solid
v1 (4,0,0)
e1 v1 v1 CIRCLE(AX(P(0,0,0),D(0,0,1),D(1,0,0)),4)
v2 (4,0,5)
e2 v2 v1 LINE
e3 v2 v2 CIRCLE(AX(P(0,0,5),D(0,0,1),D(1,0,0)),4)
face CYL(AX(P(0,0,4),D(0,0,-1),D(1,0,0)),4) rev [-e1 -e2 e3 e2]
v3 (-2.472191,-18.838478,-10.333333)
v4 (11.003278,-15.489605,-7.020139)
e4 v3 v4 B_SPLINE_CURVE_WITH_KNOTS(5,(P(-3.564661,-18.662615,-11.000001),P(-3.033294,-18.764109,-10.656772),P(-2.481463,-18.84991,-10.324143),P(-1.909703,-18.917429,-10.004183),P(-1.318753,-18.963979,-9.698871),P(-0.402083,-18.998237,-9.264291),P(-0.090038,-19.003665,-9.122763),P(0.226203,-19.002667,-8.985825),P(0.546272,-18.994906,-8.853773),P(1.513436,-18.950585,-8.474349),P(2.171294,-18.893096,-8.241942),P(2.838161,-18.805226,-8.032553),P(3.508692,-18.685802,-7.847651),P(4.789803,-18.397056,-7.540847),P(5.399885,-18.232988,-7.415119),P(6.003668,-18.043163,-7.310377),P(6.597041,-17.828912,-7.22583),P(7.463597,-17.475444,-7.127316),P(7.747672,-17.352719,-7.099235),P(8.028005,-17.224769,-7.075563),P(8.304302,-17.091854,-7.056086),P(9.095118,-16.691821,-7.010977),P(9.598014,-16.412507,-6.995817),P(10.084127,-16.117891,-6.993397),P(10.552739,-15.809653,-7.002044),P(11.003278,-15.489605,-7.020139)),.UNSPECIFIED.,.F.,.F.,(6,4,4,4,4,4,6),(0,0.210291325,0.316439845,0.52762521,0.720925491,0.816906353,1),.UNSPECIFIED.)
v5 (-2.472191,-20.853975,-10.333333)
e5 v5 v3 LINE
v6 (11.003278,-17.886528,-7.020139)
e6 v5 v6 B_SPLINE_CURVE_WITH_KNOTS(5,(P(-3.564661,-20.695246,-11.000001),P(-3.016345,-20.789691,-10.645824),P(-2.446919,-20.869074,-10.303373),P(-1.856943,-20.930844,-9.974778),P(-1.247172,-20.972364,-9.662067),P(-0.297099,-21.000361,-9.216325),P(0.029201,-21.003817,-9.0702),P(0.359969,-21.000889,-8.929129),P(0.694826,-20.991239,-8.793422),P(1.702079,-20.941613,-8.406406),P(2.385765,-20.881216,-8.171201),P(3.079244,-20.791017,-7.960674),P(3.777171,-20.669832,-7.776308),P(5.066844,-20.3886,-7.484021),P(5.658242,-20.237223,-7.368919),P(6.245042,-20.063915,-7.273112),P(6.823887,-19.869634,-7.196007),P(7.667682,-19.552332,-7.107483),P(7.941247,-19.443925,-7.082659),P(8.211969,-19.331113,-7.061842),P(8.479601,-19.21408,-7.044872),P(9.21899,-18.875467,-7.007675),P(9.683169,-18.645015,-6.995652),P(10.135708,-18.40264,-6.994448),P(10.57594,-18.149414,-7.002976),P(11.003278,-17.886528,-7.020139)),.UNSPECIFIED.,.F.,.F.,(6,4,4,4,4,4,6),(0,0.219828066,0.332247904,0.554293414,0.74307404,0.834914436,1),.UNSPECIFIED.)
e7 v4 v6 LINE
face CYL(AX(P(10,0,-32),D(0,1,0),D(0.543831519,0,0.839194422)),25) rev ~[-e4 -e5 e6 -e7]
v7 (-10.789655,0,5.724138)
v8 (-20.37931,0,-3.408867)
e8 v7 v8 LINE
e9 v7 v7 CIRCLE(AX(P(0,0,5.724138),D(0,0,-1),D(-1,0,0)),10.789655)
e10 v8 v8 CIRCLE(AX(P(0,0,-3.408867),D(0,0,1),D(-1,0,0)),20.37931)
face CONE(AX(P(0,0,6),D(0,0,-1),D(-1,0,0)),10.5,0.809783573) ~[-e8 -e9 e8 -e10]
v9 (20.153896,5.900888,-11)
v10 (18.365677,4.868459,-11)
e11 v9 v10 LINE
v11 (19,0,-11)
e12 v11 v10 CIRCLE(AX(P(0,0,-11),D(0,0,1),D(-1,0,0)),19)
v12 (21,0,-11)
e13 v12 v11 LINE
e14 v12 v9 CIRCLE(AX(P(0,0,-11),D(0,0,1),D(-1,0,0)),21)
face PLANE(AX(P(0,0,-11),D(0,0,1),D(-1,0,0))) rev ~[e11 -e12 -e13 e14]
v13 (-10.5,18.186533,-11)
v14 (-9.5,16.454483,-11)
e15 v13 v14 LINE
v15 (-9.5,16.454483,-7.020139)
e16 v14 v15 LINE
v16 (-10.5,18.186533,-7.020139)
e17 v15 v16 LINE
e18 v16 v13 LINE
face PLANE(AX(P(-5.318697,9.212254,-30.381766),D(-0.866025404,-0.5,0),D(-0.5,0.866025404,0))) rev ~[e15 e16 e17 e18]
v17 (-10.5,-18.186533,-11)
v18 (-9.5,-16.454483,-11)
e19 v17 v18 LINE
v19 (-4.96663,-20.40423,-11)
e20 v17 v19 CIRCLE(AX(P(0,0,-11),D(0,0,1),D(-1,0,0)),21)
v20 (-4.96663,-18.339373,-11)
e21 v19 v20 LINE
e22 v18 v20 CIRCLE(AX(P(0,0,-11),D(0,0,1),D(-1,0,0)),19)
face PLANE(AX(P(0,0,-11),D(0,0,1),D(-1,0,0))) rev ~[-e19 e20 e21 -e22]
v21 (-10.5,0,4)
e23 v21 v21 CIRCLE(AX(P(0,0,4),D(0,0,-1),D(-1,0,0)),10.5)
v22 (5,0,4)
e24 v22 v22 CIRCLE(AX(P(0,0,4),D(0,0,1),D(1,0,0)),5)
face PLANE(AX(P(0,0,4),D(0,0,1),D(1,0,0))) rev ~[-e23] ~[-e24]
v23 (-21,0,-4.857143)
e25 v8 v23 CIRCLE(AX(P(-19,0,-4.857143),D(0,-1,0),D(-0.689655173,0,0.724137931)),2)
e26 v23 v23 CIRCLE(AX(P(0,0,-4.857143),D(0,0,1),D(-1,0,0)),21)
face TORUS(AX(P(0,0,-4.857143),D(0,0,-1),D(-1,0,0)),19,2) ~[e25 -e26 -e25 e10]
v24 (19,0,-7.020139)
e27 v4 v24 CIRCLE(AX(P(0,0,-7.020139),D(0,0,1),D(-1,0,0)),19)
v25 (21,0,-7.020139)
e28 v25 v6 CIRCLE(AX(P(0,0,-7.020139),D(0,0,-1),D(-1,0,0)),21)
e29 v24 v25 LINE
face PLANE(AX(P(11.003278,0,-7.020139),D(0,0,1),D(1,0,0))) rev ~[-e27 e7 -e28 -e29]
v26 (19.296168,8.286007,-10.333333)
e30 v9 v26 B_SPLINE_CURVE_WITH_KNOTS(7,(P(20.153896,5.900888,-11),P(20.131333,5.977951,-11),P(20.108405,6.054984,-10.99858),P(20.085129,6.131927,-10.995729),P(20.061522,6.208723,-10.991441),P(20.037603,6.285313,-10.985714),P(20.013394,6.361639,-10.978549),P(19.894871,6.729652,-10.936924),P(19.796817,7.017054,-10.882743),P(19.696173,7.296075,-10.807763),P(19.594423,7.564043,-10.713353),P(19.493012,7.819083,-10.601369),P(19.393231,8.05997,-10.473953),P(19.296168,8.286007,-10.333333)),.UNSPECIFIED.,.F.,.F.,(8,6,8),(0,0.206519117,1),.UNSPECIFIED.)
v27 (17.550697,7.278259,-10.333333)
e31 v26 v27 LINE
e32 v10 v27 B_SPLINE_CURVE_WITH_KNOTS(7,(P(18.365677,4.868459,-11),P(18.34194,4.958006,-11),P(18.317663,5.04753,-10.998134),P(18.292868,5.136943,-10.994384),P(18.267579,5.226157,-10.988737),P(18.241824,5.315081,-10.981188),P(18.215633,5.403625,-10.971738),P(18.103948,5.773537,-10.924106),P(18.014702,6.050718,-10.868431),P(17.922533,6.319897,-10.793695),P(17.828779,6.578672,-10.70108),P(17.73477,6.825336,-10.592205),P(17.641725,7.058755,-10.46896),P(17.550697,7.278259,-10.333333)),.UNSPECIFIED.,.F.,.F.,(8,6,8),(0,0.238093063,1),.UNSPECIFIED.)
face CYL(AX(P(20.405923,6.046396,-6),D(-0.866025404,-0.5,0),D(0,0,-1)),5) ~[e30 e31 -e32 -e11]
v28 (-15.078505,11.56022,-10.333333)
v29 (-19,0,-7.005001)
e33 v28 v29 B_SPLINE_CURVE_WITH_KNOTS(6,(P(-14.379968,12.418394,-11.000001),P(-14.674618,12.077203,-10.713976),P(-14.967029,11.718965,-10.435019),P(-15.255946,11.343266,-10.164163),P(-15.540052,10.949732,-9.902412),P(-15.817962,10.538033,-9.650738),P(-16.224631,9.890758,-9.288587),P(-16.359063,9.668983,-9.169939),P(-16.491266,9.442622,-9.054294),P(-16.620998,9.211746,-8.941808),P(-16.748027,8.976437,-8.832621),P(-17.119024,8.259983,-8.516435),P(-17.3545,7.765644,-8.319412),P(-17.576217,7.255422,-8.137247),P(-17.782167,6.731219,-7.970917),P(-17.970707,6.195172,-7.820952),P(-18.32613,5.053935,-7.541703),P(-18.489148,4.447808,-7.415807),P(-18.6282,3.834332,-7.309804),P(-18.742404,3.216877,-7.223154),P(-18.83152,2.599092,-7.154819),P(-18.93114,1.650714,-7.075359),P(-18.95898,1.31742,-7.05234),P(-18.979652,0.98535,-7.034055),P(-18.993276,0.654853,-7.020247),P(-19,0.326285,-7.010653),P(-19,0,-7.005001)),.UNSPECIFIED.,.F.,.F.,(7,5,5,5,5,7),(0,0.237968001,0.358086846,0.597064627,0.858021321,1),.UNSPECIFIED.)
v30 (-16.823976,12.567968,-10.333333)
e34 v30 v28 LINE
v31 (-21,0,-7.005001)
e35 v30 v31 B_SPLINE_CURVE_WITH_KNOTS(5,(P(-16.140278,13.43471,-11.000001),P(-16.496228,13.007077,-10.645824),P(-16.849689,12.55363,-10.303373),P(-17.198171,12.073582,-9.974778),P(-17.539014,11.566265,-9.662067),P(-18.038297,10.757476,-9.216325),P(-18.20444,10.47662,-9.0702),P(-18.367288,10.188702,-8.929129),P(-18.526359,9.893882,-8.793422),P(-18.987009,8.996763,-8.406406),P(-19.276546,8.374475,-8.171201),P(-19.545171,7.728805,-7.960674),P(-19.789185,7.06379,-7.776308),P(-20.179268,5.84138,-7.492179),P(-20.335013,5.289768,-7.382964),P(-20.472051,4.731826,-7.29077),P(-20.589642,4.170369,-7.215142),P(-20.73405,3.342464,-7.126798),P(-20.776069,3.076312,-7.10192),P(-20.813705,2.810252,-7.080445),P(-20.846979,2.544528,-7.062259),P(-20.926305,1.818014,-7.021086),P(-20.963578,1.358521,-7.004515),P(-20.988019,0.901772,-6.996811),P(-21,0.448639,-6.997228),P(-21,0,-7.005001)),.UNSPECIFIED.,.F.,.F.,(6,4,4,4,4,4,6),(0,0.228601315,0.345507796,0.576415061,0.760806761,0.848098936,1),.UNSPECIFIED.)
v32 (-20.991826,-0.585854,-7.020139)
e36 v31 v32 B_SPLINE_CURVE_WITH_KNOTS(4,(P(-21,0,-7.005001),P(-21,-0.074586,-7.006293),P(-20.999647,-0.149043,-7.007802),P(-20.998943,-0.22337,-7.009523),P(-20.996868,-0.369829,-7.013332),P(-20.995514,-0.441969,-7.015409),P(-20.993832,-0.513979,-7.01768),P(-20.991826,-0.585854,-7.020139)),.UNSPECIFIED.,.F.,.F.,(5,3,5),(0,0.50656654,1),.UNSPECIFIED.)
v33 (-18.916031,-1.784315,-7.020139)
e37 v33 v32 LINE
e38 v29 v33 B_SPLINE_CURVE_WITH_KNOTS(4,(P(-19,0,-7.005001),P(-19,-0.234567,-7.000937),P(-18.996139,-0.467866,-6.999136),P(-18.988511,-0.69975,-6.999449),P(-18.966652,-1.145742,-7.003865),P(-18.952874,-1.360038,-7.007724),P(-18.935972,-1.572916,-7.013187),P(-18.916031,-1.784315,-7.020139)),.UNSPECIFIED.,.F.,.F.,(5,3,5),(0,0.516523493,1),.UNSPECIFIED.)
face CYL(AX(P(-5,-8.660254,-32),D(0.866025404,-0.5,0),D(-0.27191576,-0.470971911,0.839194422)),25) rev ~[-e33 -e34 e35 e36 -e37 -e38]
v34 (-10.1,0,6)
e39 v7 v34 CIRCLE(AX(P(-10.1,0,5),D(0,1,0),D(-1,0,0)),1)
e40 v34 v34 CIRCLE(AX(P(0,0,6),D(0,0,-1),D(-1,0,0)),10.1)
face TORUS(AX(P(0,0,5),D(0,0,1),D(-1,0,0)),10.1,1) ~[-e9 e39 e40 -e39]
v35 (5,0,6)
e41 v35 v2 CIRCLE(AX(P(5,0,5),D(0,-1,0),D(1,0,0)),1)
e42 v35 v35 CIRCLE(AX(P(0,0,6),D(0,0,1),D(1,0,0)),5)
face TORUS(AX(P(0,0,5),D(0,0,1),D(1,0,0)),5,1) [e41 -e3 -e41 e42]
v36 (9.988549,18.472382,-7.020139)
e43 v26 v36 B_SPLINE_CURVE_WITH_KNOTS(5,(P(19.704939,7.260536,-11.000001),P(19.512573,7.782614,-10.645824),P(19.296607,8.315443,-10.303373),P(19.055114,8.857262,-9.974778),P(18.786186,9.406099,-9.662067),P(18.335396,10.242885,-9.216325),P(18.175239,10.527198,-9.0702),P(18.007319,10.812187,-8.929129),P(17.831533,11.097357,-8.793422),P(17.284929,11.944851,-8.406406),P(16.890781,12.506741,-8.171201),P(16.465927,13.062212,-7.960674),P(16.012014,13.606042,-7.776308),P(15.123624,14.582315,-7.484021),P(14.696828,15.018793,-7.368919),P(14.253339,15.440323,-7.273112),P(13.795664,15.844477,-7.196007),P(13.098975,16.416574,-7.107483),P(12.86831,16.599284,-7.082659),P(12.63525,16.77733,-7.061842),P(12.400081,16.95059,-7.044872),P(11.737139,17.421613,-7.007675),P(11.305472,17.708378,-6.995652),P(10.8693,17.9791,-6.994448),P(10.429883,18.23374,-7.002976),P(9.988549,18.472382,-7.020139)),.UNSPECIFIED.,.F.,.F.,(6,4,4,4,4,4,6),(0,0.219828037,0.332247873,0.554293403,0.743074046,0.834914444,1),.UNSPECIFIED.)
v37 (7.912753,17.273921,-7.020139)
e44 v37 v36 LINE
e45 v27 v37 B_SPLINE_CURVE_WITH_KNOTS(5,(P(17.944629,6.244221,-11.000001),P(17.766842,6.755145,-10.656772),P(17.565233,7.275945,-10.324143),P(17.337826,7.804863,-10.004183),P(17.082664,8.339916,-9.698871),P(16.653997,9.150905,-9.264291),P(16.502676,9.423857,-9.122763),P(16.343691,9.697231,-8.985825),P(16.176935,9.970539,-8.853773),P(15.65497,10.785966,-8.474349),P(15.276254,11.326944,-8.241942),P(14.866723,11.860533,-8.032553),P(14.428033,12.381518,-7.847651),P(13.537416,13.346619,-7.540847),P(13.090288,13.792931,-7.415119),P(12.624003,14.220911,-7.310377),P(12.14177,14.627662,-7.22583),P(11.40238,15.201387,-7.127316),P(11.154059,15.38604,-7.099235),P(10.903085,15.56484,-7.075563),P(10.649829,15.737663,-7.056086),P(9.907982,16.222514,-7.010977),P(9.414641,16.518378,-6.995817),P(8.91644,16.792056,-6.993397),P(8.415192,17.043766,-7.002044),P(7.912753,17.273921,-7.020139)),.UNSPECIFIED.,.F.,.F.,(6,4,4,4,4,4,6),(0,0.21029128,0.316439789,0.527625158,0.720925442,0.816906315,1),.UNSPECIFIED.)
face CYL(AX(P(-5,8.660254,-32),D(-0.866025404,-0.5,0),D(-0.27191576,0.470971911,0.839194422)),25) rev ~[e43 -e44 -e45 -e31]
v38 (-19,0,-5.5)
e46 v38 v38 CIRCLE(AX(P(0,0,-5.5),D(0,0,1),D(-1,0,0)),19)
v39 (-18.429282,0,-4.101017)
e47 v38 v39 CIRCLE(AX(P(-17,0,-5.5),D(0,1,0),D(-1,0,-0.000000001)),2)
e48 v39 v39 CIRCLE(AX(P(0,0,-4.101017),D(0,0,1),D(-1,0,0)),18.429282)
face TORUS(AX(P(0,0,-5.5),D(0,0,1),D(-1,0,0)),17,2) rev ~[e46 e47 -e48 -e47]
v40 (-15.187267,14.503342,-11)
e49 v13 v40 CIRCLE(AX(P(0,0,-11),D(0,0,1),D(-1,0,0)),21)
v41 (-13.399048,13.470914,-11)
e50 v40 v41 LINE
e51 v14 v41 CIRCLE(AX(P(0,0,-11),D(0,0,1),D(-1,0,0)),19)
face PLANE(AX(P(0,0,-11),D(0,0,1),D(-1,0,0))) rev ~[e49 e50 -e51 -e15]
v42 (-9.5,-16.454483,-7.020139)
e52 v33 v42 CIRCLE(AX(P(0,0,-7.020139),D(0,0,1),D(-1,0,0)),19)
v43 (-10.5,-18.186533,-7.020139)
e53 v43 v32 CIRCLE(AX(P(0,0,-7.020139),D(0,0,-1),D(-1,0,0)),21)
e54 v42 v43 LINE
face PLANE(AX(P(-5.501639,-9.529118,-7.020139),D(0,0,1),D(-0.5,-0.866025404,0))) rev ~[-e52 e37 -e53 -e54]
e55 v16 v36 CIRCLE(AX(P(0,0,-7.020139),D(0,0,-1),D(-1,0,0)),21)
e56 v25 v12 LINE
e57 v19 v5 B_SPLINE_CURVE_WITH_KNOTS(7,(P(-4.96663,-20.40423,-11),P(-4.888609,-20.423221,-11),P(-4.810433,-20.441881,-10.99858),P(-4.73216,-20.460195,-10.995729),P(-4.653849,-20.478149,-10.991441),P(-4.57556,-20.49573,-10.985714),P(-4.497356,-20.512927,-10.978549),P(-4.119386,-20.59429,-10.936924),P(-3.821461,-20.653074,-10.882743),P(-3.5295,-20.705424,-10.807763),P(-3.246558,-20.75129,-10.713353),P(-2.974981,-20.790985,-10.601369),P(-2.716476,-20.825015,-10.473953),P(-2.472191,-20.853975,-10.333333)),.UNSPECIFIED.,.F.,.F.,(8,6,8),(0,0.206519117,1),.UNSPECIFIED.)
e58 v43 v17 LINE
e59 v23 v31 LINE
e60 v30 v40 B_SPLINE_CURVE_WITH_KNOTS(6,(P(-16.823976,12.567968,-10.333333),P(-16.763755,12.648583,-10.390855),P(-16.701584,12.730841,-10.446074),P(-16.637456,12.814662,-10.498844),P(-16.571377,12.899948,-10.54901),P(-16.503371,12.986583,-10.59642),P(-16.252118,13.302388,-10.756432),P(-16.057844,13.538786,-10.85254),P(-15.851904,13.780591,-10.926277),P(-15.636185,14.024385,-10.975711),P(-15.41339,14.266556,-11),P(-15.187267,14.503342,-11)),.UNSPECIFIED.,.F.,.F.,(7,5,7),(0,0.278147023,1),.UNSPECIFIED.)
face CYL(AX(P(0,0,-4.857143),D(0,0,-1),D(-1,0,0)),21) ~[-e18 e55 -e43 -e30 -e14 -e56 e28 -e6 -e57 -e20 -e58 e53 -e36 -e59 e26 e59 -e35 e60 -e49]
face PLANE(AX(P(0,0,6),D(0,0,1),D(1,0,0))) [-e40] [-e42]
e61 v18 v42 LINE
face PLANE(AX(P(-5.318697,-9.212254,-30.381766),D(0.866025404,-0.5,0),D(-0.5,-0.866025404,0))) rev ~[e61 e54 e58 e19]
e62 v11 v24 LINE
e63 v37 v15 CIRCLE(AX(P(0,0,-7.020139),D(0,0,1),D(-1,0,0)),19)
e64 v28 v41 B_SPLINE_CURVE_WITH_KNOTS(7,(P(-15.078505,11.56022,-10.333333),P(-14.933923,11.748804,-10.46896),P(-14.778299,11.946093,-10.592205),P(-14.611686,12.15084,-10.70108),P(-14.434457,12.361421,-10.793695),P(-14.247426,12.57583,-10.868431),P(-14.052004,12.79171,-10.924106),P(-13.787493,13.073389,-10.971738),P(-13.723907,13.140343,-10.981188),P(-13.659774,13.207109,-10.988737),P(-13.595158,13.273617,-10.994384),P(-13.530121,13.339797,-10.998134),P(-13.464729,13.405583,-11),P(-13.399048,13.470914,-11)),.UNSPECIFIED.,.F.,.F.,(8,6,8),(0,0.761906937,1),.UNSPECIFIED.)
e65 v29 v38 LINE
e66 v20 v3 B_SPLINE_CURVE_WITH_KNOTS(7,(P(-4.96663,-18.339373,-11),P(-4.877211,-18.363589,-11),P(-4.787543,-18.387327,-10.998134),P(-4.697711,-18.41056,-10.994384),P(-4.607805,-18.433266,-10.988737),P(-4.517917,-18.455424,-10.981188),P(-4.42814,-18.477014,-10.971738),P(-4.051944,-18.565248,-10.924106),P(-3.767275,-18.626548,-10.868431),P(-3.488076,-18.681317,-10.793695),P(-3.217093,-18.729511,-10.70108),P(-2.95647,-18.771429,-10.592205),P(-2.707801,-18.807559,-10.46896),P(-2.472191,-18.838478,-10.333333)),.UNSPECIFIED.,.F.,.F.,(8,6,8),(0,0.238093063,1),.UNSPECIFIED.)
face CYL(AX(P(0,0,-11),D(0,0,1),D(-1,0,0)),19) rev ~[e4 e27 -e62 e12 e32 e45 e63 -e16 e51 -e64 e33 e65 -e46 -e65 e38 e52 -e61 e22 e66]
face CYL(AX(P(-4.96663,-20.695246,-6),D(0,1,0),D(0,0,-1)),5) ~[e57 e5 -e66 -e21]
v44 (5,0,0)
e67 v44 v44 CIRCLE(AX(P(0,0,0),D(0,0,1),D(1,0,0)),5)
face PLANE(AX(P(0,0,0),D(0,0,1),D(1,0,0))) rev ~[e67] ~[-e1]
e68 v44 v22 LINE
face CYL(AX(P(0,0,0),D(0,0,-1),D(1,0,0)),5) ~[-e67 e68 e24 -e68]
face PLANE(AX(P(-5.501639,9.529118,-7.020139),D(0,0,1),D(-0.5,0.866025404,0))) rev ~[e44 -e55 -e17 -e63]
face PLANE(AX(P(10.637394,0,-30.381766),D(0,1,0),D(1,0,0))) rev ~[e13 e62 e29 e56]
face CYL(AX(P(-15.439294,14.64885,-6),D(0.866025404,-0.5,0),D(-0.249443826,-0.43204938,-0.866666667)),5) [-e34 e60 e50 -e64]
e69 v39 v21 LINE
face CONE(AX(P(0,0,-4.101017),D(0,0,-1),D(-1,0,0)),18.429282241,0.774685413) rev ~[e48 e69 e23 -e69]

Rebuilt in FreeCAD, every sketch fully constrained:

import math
import FreeCAD as App
import Part
import Sketcher

V = App.Vector


def edges_at(feature, points):
    """Names of the edges that pass closest to the given points."""
    edges = feature.Shape.Edges
    near = lambda p: min(range(len(edges)), key=lambda i: edges[i].distToShape(Part.Vertex(*p))[0])
    return sorted({f"Edge{near(p) + 1}" for p in points})

doc = App.newDocument("Part")
params = doc.addObject("Spreadsheet::Sheet", "Params")
for row, (alias, value) in enumerate([
    ("sketch1_diameter", "10 mm"),
    ("sketch1_diameter2", "8 mm"),
    ("pad1_length", "4 mm"),
    ("sketch2_diameter", "21 mm"),
    ("sketch2_diameter2", "8 mm"),
    ("pad2_length", "2 mm"),
    ("sketch3_radius", "2 mm"),
    ("sketch3_height", "5.5 mm"),
    ("revolution_angle", "360 deg"),
    ("sketch4_radius", "25 mm"),
    ("sketch4_height", "4 mm"),
    ("fillet_radius", "5 mm"),
    ("fillet2_radius", "1 mm"),
], start=1):
    params.set(f"A{row}", alias)
    params.set(f"B{row}", "=" + value)
    params.setAlias(f"B{row}", alias)

body = doc.addObject("PartDesign::Body", "Body")

sketch1 = body.newObject("Sketcher::SketchObject", "Sketch")
sketch1.AttachmentSupport = (doc.getObject("XY_Plane"), [""])
sketch1.MapMode = "FlatFace"
sketch1.addGeometry([
    Part.Circle(V(0, 0, 0), V(0, 0, 1), 5),
    Part.Circle(V(0, 0, 0), V(0, 0, 1), 4),
], False)
sketch1.addConstraint([
    Sketcher.Constraint("Coincident", 0, 3, -1, 1),
    Sketcher.Constraint("Coincident", 1, 3, -1, 1),
    Sketcher.Constraint("Diameter", 0, 10.0),
    Sketcher.Constraint("Diameter", 1, 8.0),
])
sketch1.setExpression("Constraints[2]", "Params.sketch1_diameter")
sketch1.setExpression("Constraints[3]", "Params.sketch1_diameter2")
pad1 = body.newObject("PartDesign::Pad", "Pad")
pad1.Profile = sketch1
pad1.setExpression("Length", "Params.pad1_length")

sketch2 = body.newObject("Sketcher::SketchObject", "Sketch001")
sketch2.AttachmentSupport = (doc.getObject("XY_Plane"), [""])
sketch2.MapMode = "FlatFace"
sketch2.AttachmentOffset = App.Placement(V(0, 0, 4), App.Rotation())
sketch2.addGeometry([
    Part.Circle(V(0, 0, 0), V(0, 0, 1), 10.5),
    Part.Circle(V(0, 0, 0), V(0, 0, 1), 4),
], False)
sketch2.addConstraint([
    Sketcher.Constraint("Coincident", 0, 3, -1, 1),
    Sketcher.Constraint("Coincident", 1, 3, -1, 1),
    Sketcher.Constraint("Diameter", 0, 21.0),
    Sketcher.Constraint("Diameter", 1, 8.0),
])
sketch2.setExpression("Constraints[2]", "Params.sketch2_diameter")
sketch2.setExpression("Constraints[3]", "Params.sketch2_diameter2")
pad2 = body.newObject("PartDesign::Pad", "Pad001")
pad2.Profile = sketch2
pad2.setExpression("Length", "Params.pad2_length")

sketch3 = body.newObject("Sketcher::SketchObject", "Sketch002")
sketch3.AttachmentSupport = (doc.getObject("XZ_Plane"), [""])
sketch3.MapMode = "FlatFace"
sketch3.addGeometry([
    Part.LineSegment(V(-20.4, -3.4, 0), V(-10.5, 6, 0)),
    Part.LineSegment(V(-10.5, 6, 0), V(-10.5, 4, 0)),
    Part.LineSegment(V(-10.5, 4, 0), V(-18.4, -4.1, 0)),
    Part.ArcOfCircle(Part.Circle(V(-17, -5.5, 0), V(0, 0, 1), 2), math.radians(136), math.radians(180)),
    Part.LineSegment(V(-19, -5.5, 0), V(-19, -11, 0)),
    Part.LineSegment(V(-19, -11, 0), V(-21, -11, 0)),
    Part.LineSegment(V(-21, -11, 0), V(-21, -4.9, 0)),
    Part.ArcOfCircle(Part.Circle(V(-19, -4.9, 0), V(0, 0, 1), 2), math.radians(134), math.radians(180)),
], False)
sketch3.addConstraint([
    Sketcher.Constraint("Coincident", 0, 2, 1, 1),
    Sketcher.Constraint("Coincident", 1, 2, 2, 1),
    Sketcher.Constraint("Tangent", 2, 2, 3, 1),
    Sketcher.Constraint("Tangent", 3, 2, 4, 1),
    Sketcher.Constraint("Coincident", 4, 2, 5, 1),
    Sketcher.Constraint("Coincident", 5, 2, 6, 1),
    Sketcher.Constraint("Tangent", 6, 2, 7, 2),
    Sketcher.Constraint("Tangent", 7, 1, 0, 1),
    Sketcher.Constraint("Vertical", 1),
    Sketcher.Constraint("Vertical", 4),
    Sketcher.Constraint("Horizontal", 5),
    Sketcher.Constraint("Vertical", 6),
    Sketcher.Constraint("Equal", 3, 7),
    Sketcher.Constraint("Vertical", 7, 3, 3, 2),
    Sketcher.Constraint("Equal", 5, 1),
    Sketcher.Constraint("Radius", 3, 2.0),
    Sketcher.Constraint("DistanceY", 4, 2, 4, 1, 5.5),
    Sketcher.Constraint("DistanceX", 3, 3, -1, 1, 17.0),
    Sketcher.Constraint("DistanceY", -1, 1, 0, 2, 6.0),
    Sketcher.Constraint("DistanceY", 4, 2, -1, 1, 11.0),
    Sketcher.Constraint("DistanceX", 0, 2, -1, 1, 10.5),
    Sketcher.Constraint("DistanceY", 6, 1, 6, 2, 6.142857),
])
sketch3.setExpression("Constraints[15]", "Params.sketch3_radius")
sketch3.setExpression("Constraints[16]", "Params.sketch3_height")
revolution = body.newObject("PartDesign::Revolution", "Revolution")
revolution.Profile = sketch3
revolution.ReferenceAxis = (sketch3, ["V_Axis"])
revolution.setExpression("Angle", "Params.revolution_angle")

sketch4 = body.newObject("Sketcher::SketchObject", "Sketch003")
sketch4.AttachmentSupport = (doc.getObject("XZ_Plane"), [""])
sketch4.MapMode = "FlatFace"
sketch4.addGeometry([
    Part.LineSegment(V(11, -7, 0), V(23.6, -7, 0)),
    Part.LineSegment(V(23.6, -7, 0), V(23.6, -11, 0)),
    Part.ArcOfCircle(Part.Circle(V(10, -32, 0), V(0, 0, 1), 25), math.radians(88), math.radians(417)),
], False)
sketch4.addConstraint([
    Sketcher.Constraint("Coincident", 0, 2, 1, 1),
    Sketcher.Constraint("Coincident", 1, 2, 2, 2),
    Sketcher.Constraint("Coincident", 2, 1, 0, 1),
    Sketcher.Constraint("Horizontal", 0),
    Sketcher.Constraint("Vertical", 1),
    Sketcher.Constraint("Radius", 2, 25.0),
    Sketcher.Constraint("DistanceY", 1, 2, 1, 1, 4.0),
    Sketcher.Constraint("DistanceX", -1, 1, 2, 3, 10.0),
    Sketcher.Constraint("DistanceY", 2, 3, -1, 1, 32.0),
    Sketcher.Constraint("DistanceX", 0, 1, 0, 2, 12.59251),
])
sketch4.setExpression("Constraints[5]", "Params.sketch4_radius")
sketch4.setExpression("Constraints[6]", "Params.sketch4_height")
pocket1 = body.newObject("PartDesign::Pocket", "Pocket")
pocket1.Profile = sketch4
pocket1.Type = "ThroughAll"
pocket1.Reversed = True
doc.recompute()

polarpattern = body.newObject("PartDesign::PolarPattern", "PolarPattern")
polarpattern.Originals = [pocket1]
polarpattern.Axis = (doc.getObject("Z_Axis"), [""])
polarpattern.Angle = 360
polarpattern.Occurrences = 3
body.Tip = polarpattern
doc.recompute()

fillet = body.newObject("PartDesign::Fillet", "Fillet")
fillet.Base = (polarpattern, edges_at(polarpattern, [(-15.26, 12.927, -11), (-3.565, -19.679, -11), (18.825, 6.752, -11)]))
fillet.setExpression("Radius", "Params.fillet_radius")
doc.recompute()

fillet2 = body.newObject("PartDesign::Fillet", "Fillet001")
fillet2.Base = (fillet, edges_at(fillet, [(10.5, 0, 6), (-4, 0, 6)]))
fillet2.setExpression("Radius", "Params.fillet2_radius")

doc.recompute()
